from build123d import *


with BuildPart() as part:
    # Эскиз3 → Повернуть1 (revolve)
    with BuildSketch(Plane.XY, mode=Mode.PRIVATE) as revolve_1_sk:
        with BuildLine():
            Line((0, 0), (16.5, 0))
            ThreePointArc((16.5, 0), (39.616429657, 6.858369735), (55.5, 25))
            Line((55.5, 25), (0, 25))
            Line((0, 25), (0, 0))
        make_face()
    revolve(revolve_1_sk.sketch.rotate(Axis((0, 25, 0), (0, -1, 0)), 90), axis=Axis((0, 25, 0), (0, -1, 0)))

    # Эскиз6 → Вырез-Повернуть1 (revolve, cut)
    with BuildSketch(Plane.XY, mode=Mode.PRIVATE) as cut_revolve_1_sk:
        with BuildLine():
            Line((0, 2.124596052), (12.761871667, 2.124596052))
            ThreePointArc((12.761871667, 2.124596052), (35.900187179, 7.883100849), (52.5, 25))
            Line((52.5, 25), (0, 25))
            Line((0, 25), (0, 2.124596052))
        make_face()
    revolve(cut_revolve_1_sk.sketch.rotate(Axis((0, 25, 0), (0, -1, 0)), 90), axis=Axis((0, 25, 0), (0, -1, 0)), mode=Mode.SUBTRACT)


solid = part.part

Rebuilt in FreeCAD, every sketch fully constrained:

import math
import FreeCAD as App
import Part
import Sketcher

doc = App.newDocument("Part")
params = doc.addObject("Spreadsheet::Sheet", "Params")
for row, (alias, value) in enumerate([
    ("sketch1_height", "25 mm"),
    ("sketch1_width", "16.5 mm"),
    ("sketch1_width2", "55.5 mm"),
    ("revolution_angle", "360 deg"),
    ("sketch2_width", "52.5 mm"),
    ("groove_angle", "360 deg"),
], start=1):
    params.set(f"A{row}", alias)
    params.set(f"B{row}", "=" + value)
    params.setAlias(f"B{row}", alias)

body = doc.addObject("PartDesign::Body", "Body")

# Sketch on XY plane
sketch1 = doc.addObject("Sketcher::SketchObject", "Sketch")
body.addObject(sketch1)
sketch1.AttachmentSupport = (doc.XY_Plane, [""])
sketch1.MapMode = "FlatFace"
sketch1.addGeometry(Part.LineSegment(App.Vector(0, 0, 0), App.Vector(16, 0, 0)), False)
sketch1.addGeometry(Part.ArcOfCircle(Part.Circle(App.Vector(16, 43, 0), App.Vector(0, 0, 1), 43), math.radians(-90), math.radians(-25)), False)
sketch1.addGeometry(Part.LineSegment(App.Vector(56, 25, 0), App.Vector(0, 25, 0)), False)
sketch1.addGeometry(Part.LineSegment(App.Vector(0, 25, 0), App.Vector(0, 0, 0)), False)
sketch1.addConstraint(Sketcher.Constraint("Coincident", 0, 2, 1, 1))
sketch1.addConstraint(Sketcher.Constraint("Coincident", 1, 2, 2, 1))
sketch1.addConstraint(Sketcher.Constraint("Coincident", 2, 2, 3, 1))
sketch1.addConstraint(Sketcher.Constraint("Coincident", 3, 2, 0, 1))
sketch1.addConstraint(Sketcher.Constraint("Horizontal", 0))
sketch1.addConstraint(Sketcher.Constraint("Horizontal", 2))
sketch1.addConstraint(Sketcher.Constraint("Vertical", 3))
sketch1.addConstraint(Sketcher.Constraint("Coincident", 3, 2, -1, 1))
sketch1.addConstraint(Sketcher.Constraint("DistanceY", 3, 2, 3, 1, 25.0))
sketch1.addConstraint(Sketcher.Constraint("DistanceX", 0, 1, 0, 2, 16.5))
sketch1.addConstraint(Sketcher.Constraint("DistanceX", 2, 2, 2, 1, 55.5))
sketch1.addConstraint(Sketcher.Constraint("Radius", 1, 43.38055))
sketch1.setExpression("Constraints[8]", "Params.sketch1_height")
sketch1.setExpression("Constraints[9]", "Params.sketch1_width")
sketch1.setExpression("Constraints[10]", "Params.sketch1_width2")
revolution = doc.addObject("PartDesign::Revolution", "Revolution")
body.addObject(revolution)
revolution.Profile = sketch1
revolution.ReferenceAxis = (sketch1, ["V_Axis"])
revolution.setExpression("Angle", "Params.revolution_angle")

# Sketch on XY plane
sketch2 = doc.addObject("Sketcher::SketchObject", "Sketch001")
body.addObject(sketch2)
sketch2.AttachmentSupport = (doc.XY_Plane, [""])
sketch2.MapMode = "FlatFace"
sketch2.addGeometry(Part.LineSegment(App.Vector(0, 2, 0), App.Vector(13, 2, 0)), False)
sketch2.addGeometry(Part.ArcOfCircle(Part.Circle(App.Vector(14, 45, 0), App.Vector(0, 0, 1), 43), math.radians(-92), math.radians(-28)), False)
sketch2.addGeometry(Part.LineSegment(App.Vector(52, 25, 0), App.Vector(0, 25, 0)), False)
sketch2.addGeometry(Part.LineSegment(App.Vector(0, 25, 0), App.Vector(0, 2, 0)), False)
sketch2.addConstraint(Sketcher.Constraint("Coincident", 0, 2, 1, 1))
sketch2.addConstraint(Sketcher.Constraint("Coincident", 1, 2, 2, 1))
sketch2.addConstraint(Sketcher.Constraint("Coincident", 2, 2, 3, 1))
sketch2.addConstraint(Sketcher.Constraint("Coincident", 3, 2, 0, 1))
sketch2.addConstraint(Sketcher.Constraint("Horizontal", 0))
sketch2.addConstraint(Sketcher.Constraint("Horizontal", 2))
sketch2.addConstraint(Sketcher.Constraint("Vertical", 3))
sketch2.addConstraint(Sketcher.Constraint("PointOnObject", 2, 2, -2))
sketch2.addConstraint(Sketcher.Constraint("DistanceX", 2, 2, 2, 1, 52.5))
sketch2.addConstraint(Sketcher.Constraint("DistanceY", -1, 1, 1, 2, 25.0))
sketch2.addConstraint(Sketcher.Constraint("Radius", 1, 43.38055))
sketch2.addConstraint(Sketcher.Constraint("DistanceX", 0, 1, 0, 2, 12.761872))
sketch2.addConstraint(Sketcher.Constraint("DistanceY", 3, 2, 3, 1, 22.875404))
sketch2.setExpression("Constraints[8]", "Params.sketch2_width")
groove = doc.addObject("PartDesign::Groove", "Groove")
body.addObject(groove)
groove.Profile = sketch2
groove.ReferenceAxis = (sketch2, ["V_Axis"])
groove.setExpression("Angle", "Params.groove_angle")

doc.recompute()
